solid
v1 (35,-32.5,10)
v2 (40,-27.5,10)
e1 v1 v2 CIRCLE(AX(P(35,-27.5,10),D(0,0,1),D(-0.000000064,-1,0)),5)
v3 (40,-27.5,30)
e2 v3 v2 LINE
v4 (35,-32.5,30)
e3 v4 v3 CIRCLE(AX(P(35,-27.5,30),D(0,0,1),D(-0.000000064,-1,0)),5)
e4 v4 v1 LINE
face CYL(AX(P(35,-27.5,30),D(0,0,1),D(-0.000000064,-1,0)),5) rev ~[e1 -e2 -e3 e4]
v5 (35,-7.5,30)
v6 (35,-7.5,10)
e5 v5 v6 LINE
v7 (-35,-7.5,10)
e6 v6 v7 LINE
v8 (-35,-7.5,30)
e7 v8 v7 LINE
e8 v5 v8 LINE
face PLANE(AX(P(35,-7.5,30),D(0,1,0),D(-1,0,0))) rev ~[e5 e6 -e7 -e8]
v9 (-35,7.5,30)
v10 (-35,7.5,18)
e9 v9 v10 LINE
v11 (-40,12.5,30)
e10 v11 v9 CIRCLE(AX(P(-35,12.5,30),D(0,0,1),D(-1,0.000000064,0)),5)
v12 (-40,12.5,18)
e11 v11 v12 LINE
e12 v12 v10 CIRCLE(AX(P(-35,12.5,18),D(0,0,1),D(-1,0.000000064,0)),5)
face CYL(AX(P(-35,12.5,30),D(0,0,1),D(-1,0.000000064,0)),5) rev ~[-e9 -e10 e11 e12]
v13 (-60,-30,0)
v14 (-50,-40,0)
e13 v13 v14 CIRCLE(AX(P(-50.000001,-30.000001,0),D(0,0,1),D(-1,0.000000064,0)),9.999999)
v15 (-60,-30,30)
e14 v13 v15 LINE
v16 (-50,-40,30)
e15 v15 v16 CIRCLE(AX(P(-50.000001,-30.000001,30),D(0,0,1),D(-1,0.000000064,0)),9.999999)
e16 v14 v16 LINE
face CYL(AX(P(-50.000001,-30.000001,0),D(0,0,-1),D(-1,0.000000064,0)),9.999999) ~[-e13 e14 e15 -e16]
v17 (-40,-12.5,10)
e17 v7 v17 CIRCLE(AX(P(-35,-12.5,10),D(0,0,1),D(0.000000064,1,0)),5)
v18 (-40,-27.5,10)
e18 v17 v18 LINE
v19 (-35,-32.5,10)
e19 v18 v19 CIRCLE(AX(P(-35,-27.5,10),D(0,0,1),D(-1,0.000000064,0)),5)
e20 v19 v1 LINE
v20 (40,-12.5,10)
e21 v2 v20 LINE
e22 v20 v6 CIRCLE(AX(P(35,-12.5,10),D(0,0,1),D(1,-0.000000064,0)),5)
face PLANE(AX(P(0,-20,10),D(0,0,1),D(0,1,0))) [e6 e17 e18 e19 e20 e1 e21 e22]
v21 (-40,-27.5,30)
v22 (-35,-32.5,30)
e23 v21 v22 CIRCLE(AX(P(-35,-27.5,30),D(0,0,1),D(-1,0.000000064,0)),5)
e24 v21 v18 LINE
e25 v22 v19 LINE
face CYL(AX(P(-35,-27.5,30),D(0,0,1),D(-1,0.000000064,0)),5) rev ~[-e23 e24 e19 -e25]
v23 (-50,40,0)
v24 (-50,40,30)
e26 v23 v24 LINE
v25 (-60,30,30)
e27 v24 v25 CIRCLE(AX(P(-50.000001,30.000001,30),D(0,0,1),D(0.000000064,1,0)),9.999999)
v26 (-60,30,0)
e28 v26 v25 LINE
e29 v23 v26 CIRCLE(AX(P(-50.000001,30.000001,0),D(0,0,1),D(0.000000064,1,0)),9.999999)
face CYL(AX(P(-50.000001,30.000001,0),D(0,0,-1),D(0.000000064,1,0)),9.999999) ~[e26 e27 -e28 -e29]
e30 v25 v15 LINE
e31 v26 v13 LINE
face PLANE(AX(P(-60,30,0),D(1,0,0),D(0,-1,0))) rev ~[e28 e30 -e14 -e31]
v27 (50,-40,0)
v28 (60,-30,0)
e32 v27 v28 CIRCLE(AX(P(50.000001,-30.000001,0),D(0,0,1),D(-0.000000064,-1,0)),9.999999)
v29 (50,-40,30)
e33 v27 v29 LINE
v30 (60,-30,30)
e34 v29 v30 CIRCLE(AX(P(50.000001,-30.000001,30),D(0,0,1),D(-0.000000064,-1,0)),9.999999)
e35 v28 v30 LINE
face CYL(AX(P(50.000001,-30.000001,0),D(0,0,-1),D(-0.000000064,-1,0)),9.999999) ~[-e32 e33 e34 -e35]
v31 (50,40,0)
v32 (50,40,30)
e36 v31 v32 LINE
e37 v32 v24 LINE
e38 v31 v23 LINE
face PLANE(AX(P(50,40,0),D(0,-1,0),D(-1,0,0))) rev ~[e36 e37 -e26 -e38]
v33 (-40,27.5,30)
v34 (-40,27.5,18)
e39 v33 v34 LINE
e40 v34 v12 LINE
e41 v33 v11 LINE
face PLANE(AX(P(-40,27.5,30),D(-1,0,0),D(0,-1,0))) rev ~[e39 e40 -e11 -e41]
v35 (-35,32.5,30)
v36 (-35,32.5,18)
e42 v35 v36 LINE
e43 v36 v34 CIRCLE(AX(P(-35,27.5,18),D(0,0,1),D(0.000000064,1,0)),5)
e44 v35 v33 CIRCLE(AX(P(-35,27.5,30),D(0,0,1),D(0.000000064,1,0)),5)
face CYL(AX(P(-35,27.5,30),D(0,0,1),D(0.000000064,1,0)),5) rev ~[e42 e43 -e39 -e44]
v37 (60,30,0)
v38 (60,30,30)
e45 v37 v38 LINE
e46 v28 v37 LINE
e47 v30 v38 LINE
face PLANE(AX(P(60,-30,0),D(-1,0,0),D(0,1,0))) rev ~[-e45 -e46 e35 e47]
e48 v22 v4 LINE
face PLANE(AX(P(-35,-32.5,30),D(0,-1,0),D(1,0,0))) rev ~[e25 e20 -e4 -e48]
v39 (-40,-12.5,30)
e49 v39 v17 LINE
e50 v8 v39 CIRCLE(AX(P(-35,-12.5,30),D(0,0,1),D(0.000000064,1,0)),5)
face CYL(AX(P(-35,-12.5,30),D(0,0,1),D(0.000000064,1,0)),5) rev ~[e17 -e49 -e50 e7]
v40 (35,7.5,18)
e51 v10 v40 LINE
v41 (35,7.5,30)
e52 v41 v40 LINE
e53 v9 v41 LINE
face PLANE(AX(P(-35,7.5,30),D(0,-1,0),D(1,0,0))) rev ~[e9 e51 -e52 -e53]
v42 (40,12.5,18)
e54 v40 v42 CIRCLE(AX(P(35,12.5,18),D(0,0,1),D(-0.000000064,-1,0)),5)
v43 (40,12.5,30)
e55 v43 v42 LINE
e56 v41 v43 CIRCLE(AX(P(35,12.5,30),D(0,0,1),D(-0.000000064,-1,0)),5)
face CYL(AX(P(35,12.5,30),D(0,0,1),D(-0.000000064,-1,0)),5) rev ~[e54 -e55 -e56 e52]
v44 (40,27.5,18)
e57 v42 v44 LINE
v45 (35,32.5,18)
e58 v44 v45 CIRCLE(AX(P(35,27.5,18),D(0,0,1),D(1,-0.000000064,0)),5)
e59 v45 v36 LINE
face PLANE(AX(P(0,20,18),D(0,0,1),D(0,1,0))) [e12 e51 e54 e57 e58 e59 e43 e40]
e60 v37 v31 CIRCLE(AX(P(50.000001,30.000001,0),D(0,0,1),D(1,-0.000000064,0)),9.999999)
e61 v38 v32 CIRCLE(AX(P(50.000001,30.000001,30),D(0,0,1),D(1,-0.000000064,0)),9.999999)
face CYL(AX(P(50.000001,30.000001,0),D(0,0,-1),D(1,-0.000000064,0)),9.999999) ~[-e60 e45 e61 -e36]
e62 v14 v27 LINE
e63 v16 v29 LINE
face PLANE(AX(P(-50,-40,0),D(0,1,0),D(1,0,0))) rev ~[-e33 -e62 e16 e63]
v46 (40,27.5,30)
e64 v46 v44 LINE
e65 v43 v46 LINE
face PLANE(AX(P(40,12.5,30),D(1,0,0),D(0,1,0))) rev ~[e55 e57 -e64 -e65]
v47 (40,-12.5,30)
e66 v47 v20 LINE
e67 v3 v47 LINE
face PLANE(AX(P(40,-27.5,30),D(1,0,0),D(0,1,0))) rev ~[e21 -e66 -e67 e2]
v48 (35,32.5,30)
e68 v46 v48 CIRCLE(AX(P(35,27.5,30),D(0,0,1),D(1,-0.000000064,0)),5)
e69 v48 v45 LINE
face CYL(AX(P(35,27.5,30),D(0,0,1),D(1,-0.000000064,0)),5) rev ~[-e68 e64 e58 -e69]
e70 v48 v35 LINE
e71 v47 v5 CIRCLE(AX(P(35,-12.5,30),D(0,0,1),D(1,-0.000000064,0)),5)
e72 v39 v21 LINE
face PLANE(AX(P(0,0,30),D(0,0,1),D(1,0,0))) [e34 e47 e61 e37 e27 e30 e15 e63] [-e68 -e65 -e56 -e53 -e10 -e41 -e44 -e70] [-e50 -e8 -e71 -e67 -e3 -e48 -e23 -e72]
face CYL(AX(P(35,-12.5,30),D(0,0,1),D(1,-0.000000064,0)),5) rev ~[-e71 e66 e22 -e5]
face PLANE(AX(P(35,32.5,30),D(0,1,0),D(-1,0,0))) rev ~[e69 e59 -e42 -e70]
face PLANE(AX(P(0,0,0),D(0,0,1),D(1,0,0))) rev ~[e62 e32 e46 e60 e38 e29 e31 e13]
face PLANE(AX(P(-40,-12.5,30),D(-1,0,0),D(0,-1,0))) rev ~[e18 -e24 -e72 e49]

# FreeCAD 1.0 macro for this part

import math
import FreeCAD as App
import Part
import Sketcher

V = App.Vector
Q = App.Units.Quantity

doc = App.newDocument("Part")
body = doc.addObject("PartDesign::Body", "Body")

# Sketch on XY plane
sketch1 = doc.addObject("Sketcher::SketchObject", "Sketch")
body.addObject(sketch1)
sketch1.AttachmentSupport = (doc.XY_Plane, [""])
sketch1.MapMode = "FlatFace"
sketch1.addGeometry([
    Part.LineSegment(V(-60, 30, 0), V(-60, -30, 0)),  # 0
    Part.ArcOfCircle(Part.Circle(V(-50, -30, 0), V(0, 0, 1), 10), math.radians(180), math.radians(270)),  # 1
    Part.LineSegment(V(-50, -40, 0), V(50, -40, 0)),  # 2
    Part.ArcOfCircle(Part.Circle(V(50, -30, 0), V(0, 0, 1), 10), math.radians(-90), math.radians(0)),  # 3
    Part.LineSegment(V(60, -30, 0), V(60, 30, 0)),  # 4
    Part.ArcOfCircle(Part.Circle(V(50, 30, 0), V(0, 0, 1), 10), math.radians(0), math.radians(90)),  # 5
    Part.LineSegment(V(50, 40, 0), V(-50, 40, 0)),  # 6
    Part.ArcOfCircle(Part.Circle(V(-50, 30, 0), V(0, 0, 1), 10), math.radians(90), math.radians(180)),  # 7
], False)
sketch1.addConstraint([
    Sketcher.Constraint("Tangent", 0, 2, 1, 1),
    Sketcher.Constraint("Tangent", 1, 2, 2, 1),
    Sketcher.Constraint("Tangent", 2, 2, 3, 1),
    Sketcher.Constraint("Tangent", 3, 2, 4, 1),
    Sketcher.Constraint("Tangent", 4, 2, 5, 1),
    Sketcher.Constraint("Tangent", 5, 2, 6, 1),
    Sketcher.Constraint("Tangent", 6, 2, 7, 1),
    Sketcher.Constraint("Tangent", 7, 2, 0, 1),
    Sketcher.Constraint("Vertical", 0),
    Sketcher.Constraint("Horizontal", 2),
    Sketcher.Constraint("Vertical", 4),
    Sketcher.Constraint("Horizontal", 6),
    Sketcher.Constraint("Equal", 1, 3),
    Sketcher.Constraint("Equal", 3, 5),
    Sketcher.Constraint("Equal", 5, 7),
    Sketcher.Constraint("Symmetric", 1, 3, 5, 3, -1, 1),
    Sketcher.Constraint("Radius", 1, Q("9.999999 mm")),
    Sketcher.Constraint("DistanceX", 2, 1, 2, 2, Q("100 mm")),
    Sketcher.Constraint("DistanceY", 0, 2, 0, 1, Q("60 mm")),
])
pad1 = doc.addObject("PartDesign::Pad", "Pad")
body.addObject(pad1)
pad1.Profile = sketch1
pad1.Length = 30

# Sketch on XY plane
sketch2 = doc.addObject("Sketcher::SketchObject", "Sketch001")
body.addObject(sketch2)
sketch2.AttachmentSupport = (doc.XY_Plane, [""])
sketch2.MapMode = "FlatFace"
sketch2.AttachmentOffset = App.Placement(V(0, 0, 30), App.Rotation())
sketch2.addGeometry([
    Part.LineSegment(V(-40, 27.5, 0), V(-40, 12.5, 0)),  # 0
    Part.ArcOfCircle(Part.Circle(V(-35, 12.5, 0), V(0, 0, 1), 5), math.radians(180), math.radians(270)),  # 1
    Part.LineSegment(V(-35, 7.5, 0), V(35, 7.5, 0)),  # 2
    Part.ArcOfCircle(Part.Circle(V(35, 12.5, 0), V(0, 0, 1), 5), math.radians(-90), math.radians(0)),  # 3
    Part.LineSegment(V(40, 12.5, 0), V(40, 27.5, 0)),  # 4
    Part.ArcOfCircle(Part.Circle(V(35, 27.5, 0), V(0, 0, 1), 5), math.radians(0), math.radians(90)),  # 5
    Part.LineSegment(V(35, 32.5, 0), V(-35, 32.5, 0)),  # 6
    Part.ArcOfCircle(Part.Circle(V(-35, 27.5, 0), V(0, 0, 1), 5), math.radians(90), math.radians(180)),  # 7
], False)
sketch2.addConstraint([
    Sketcher.Constraint("Tangent", 0, 2, 1, 1),
    Sketcher.Constraint("Tangent", 1, 2, 2, 1),
    Sketcher.Constraint("Tangent", 2, 2, 3, 1),
    Sketcher.Constraint("Tangent", 3, 2, 4, 1),
    Sketcher.Constraint("Tangent", 4, 2, 5, 1),
    Sketcher.Constraint("Tangent", 5, 2, 6, 1),
    Sketcher.Constraint("Tangent", 6, 2, 7, 1),
    Sketcher.Constraint("Tangent", 7, 2, 0, 1),
    Sketcher.Constraint("Vertical", 0),
    Sketcher.Constraint("Horizontal", 2),
    Sketcher.Constraint("Vertical", 4),
    Sketcher.Constraint("Horizontal", 6),
    Sketcher.Constraint("Equal", 1, 3),
    Sketcher.Constraint("Equal", 3, 5),
    Sketcher.Constraint("Equal", 5, 7),
    Sketcher.Constraint("Radius", 1, Q("5 mm")),
    Sketcher.Constraint("DistanceX", 2, 1, 2, 2, Q("70 mm")),
    Sketcher.Constraint("DistanceY", 0, 2, 0, 1, Q("15 mm")),
    Sketcher.Constraint("DistanceX", 1, 3, -1, 1, Q("35 mm")),
    Sketcher.Constraint("DistanceY", -1, 1, 1, 3, Q("12.5 mm")),
])
pocket1 = doc.addObject("PartDesign::Pocket", "Pocket")
body.addObject(pocket1)
pocket1.Profile = sketch2
pocket1.Length = 12

# Sketch on XY plane
sketch3 = doc.addObject("Sketcher::SketchObject", "Sketch002")
body.addObject(sketch3)
sketch3.AttachmentSupport = (doc.XY_Plane, [""])
sketch3.MapMode = "FlatFace"
sketch3.AttachmentOffset = App.Placement(V(0, 0, 30), App.Rotation())
sketch3.addGeometry([
    Part.LineSegment(V(-40, -12.5, 0), V(-40, -27.5, 0)),  # 0
    Part.ArcOfCircle(Part.Circle(V(-35, -27.5, 0), V(0, 0, 1), 5), math.radians(180), math.radians(270)),  # 1
    Part.LineSegment(V(-35, -32.5, 0), V(35, -32.5, 0)),  # 2
    Part.ArcOfCircle(Part.Circle(V(35, -27.5, 0), V(0, 0, 1), 5), math.radians(-90), math.radians(0)),  # 3
    Part.LineSegment(V(40, -27.5, 0), V(40, -12.5, 0)),  # 4
    Part.ArcOfCircle(Part.Circle(V(35, -12.5, 0), V(0, 0, 1), 5), math.radians(0), math.radians(90)),  # 5
    Part.LineSegment(V(35, -7.5, 0), V(-35, -7.5, 0)),  # 6
    Part.ArcOfCircle(Part.Circle(V(-35, -12.5, 0), V(0, 0, 1), 5), math.radians(90), math.radians(180)),  # 7
], False)
sketch3.addConstraint([
    Sketcher.Constraint("Tangent", 0, 2, 1, 1),
    Sketcher.Constraint("Tangent", 1, 2, 2, 1),
    Sketcher.Constraint("Tangent", 2, 2, 3, 1),
    Sketcher.Constraint("Tangent", 3, 2, 4, 1),
    Sketcher.Constraint("Tangent", 4, 2, 5, 1),
    Sketcher.Constraint("Tangent", 5, 2, 6, 1),
    Sketcher.Constraint("Tangent", 6, 2, 7, 1),
    Sketcher.Constraint("Tangent", 7, 2, 0, 1),
    Sketcher.Constraint("Vertical", 0),
    Sketcher.Constraint("Horizontal", 2),
    Sketcher.Constraint("Vertical", 4),
    Sketcher.Constraint("Horizontal", 6),
    Sketcher.Constraint("Equal", 1, 3),
    Sketcher.Constraint("Equal", 3, 5),
    Sketcher.Constraint("Equal", 5, 7),
    Sketcher.Constraint("Radius", 1, Q("5 mm")),
    Sketcher.Constraint("DistanceX", 2, 1, 2, 2, Q("70 mm")),
    Sketcher.Constraint("DistanceY", 0, 2, 0, 1, Q("15 mm")),
    Sketcher.Constraint("DistanceX", 1, 3, -1, 1, Q("35 mm")),
    Sketcher.Constraint("DistanceY", 1, 3, -1, 1, Q("27.5 mm")),
])
pocket2 = doc.addObject("PartDesign::Pocket", "Pocket001")
body.addObject(pocket2)
pocket2.Profile = sketch3
pocket2.Length = 20

doc.recompute()
